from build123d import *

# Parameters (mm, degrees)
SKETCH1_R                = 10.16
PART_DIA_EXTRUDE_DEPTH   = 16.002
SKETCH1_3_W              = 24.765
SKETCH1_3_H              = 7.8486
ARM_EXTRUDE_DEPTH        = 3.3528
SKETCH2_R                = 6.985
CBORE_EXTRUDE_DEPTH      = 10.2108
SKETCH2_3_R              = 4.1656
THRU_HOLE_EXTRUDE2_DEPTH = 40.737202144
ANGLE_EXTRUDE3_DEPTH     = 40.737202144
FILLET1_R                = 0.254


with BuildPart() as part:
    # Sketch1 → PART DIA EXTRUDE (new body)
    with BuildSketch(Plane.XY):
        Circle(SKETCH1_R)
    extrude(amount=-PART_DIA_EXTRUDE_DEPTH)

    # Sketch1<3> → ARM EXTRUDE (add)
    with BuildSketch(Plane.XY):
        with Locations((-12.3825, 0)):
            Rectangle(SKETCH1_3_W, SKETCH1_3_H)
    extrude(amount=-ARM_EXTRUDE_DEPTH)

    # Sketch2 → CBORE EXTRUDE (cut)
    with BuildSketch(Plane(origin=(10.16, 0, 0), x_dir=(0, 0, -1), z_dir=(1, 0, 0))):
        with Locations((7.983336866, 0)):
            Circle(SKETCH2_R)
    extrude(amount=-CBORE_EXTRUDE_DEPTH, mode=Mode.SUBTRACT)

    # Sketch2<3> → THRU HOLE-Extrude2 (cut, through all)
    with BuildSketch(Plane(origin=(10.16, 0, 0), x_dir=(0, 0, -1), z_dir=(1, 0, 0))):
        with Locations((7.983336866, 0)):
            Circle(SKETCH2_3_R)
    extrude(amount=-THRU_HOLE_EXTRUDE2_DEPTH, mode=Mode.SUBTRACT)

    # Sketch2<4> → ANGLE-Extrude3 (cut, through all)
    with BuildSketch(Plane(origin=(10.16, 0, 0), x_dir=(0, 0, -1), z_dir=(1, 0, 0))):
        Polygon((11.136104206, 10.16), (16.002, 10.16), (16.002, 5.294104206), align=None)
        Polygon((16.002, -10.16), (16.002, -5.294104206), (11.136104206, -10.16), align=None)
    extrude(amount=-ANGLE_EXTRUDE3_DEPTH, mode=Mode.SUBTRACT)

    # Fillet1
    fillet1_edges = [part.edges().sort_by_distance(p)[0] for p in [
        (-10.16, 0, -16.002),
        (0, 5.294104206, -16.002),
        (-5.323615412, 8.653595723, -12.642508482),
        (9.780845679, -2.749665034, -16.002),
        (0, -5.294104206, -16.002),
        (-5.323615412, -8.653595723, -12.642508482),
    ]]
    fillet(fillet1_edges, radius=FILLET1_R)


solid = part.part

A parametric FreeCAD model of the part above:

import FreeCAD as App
import Part
import Sketcher
from FreeCAD import Vector
Q = App.Units.Quantity


def edges_at(feature, points):
    """Names of the edges that pass closest to the given points."""
    edges = feature.Shape.Edges
    near = lambda p: min(range(len(edges)), key=lambda i: edges[i].distToShape(Part.Vertex(*p))[0])
    return sorted({f"Edge{near(p) + 1}" for p in points})


def add_polygon(sketch, points):
    """Adds a closed chain of lines whose ends are joined by coincident constraints."""
    first, n = sketch.GeometryCount, len(points)
    for a, b in zip(points, points[1:] + points[:1]):
        sketch.addGeometry(Part.LineSegment(App.Vector(*a, 0), App.Vector(*b, 0)), False)
    for i in range(n):
        sketch.addConstraint(Sketcher.Constraint("Coincident", first + i, 2, first + (i + 1) % n, 1))

doc = App.newDocument("Part")
body = doc.addObject("PartDesign::Body", "Body")

sketch1 = body.newObject("Sketcher::SketchObject", "Sketch")
sketch1.AttachmentSupport = (doc.getObject("XY_Plane"), [""])
sketch1.MapMode = "FlatFace"
sketch1.addGeometry(Part.Circle(Vector(0, 0, 0), Vector(0, 0, 1), 10), False)
sketch1.addConstraint(Sketcher.Constraint("Coincident", 0, 3, -1, 1))
sketch1.addConstraint(Sketcher.Constraint("Diameter", 0, Q("0.8 in")))
pad1 = body.newObject("PartDesign::Pad", "Pad")
pad1.Profile = sketch1
pad1.Length = Q("0.63 in")
pad1.Reversed = True

sketch2 = body.newObject("Sketcher::SketchObject", "Sketch001")
sketch2.AttachmentSupport = (doc.getObject("XY_Plane"), [""])
sketch2.MapMode = "FlatFace"
add_polygon(sketch2, [(-25, 4), (-25, -4), (0, -4), (0, 4)])
sketch2.addConstraint(Sketcher.Constraint("Vertical", 0))
sketch2.addConstraint(Sketcher.Constraint("Horizontal", 1))
sketch2.addConstraint(Sketcher.Constraint("Vertical", 2))
sketch2.addConstraint(Sketcher.Constraint("Horizontal", 3))
sketch2.addConstraint(Sketcher.Constraint("Symmetric", 1, 2, 2, 2, -1, 1))
sketch2.addConstraint(Sketcher.Constraint("DistanceX", 1, 1, 1, 2, Q("0.975 in")))
sketch2.addConstraint(Sketcher.Constraint("DistanceY", 0, 2, 0, 1, Q("0.309 in")))
pad2 = body.newObject("PartDesign::Pad", "Pad001")
pad2.Profile = sketch2
pad2.Length = Q("0.132 in")
pad2.Reversed = True

sketch3 = body.newObject("Sketcher::SketchObject", "Sketch002")
sketch3.AttachmentSupport = (doc.getObject("YZ_Plane"), [""])
sketch3.MapMode = "FlatFace"
sketch3.AttachmentOffset = App.Placement(Vector(0, 0, 0.4 * 25.4), App.Rotation())
sketch3.addGeometry(Part.Circle(Vector(0, -8, 0), Vector(0, 0, 1), 7), False)
sketch3.addConstraint(Sketcher.Constraint("PointOnObject", 0, 3, -2))
sketch3.addConstraint(Sketcher.Constraint("Diameter", 0, Q("0.55 in")))
sketch3.addConstraint(Sketcher.Constraint("DistanceY", 0, 3, -1, 1, 7.983337))
pocket1 = body.newObject("PartDesign::Pocket", "Pocket")
pocket1.Profile = sketch3
pocket1.Length = Q("0.402 in")

sketch4 = body.newObject("Sketcher::SketchObject", "Sketch003")
sketch4.AttachmentSupport = (doc.getObject("YZ_Plane"), [""])
sketch4.MapMode = "FlatFace"
sketch4.AttachmentOffset = App.Placement(Vector(0, 0, 0.4 * 25.4), App.Rotation())
sketch4.addGeometry(Part.Circle(Vector(0, -8, 0), Vector(0, 0, 1), 4.2), False)
sketch4.addConstraint(Sketcher.Constraint("PointOnObject", 0, 3, -2))
sketch4.addConstraint(Sketcher.Constraint("Diameter", 0, Q("0.328 in")))
sketch4.addConstraint(Sketcher.Constraint("DistanceY", 0, 3, -1, 1, 7.983337))
pocket2 = body.newObject("PartDesign::Pocket", "Pocket001")
pocket2.Profile = sketch4
pocket2.Type = "ThroughAll"

sketch5 = body.newObject("Sketcher::SketchObject", "Sketch004")
sketch5.AttachmentSupport = (doc.getObject("YZ_Plane"), [""])
sketch5.MapMode = "FlatFace"
sketch5.AttachmentOffset = App.Placement(Vector(0, 0, 0.4 * 25.4), App.Rotation())
add_polygon(sketch5, [(10.2, -16), (10.2, -11.1), (5.3, -16)])
add_polygon(sketch5, [(-10.2, -16), (-5.3, -16), (-10.2, -11.1)])
sketch5.addConstraint(Sketcher.Constraint("Vertical", 0))
sketch5.addConstraint(Sketcher.Constraint("Horizontal", 2))
sketch5.addConstraint(Sketcher.Constraint("Horizontal", 3))
sketch5.addConstraint(Sketcher.Constraint("Vertical", 5))
sketch5.addConstraint(Sketcher.Constraint("Symmetric", 1, 2, 3, 2, -2))
sketch5.addConstraint(Sketcher.Constraint("Symmetric", 0, 2, 4, 2, -2))
sketch5.addConstraint(Sketcher.Constraint("Perpendicular", 1, 4))
sketch5.addConstraint(Sketcher.Constraint("DistanceX", -1, 1, 0, 2, Q("0.4 in")))
sketch5.addConstraint(Sketcher.Constraint("DistanceY", 1, 2, -1, 1, Q("0.63 in")))
sketch5.addConstraint(Sketcher.Constraint("DistanceX", 2, 1, 2, 2, 4.865896))
pocket3 = body.newObject("PartDesign::Pocket", "Pocket002")
pocket3.Profile = sketch5
pocket3.Type = "ThroughAll"
doc.recompute()

fillet = body.newObject("PartDesign::Fillet", "Fillet")
fillet.Base = (pocket3, edges_at(pocket3, [
    (-10.16, 0, -16.002),
    (0, 5.294, -16.002),
    (-5.324, 8.654, -12.643),
    (9.781, -2.75, -16.002),
    (0, -5.294, -16.002),
    (-5.324, -8.654, -12.643),
]))
fillet.Radius = Q("0.01 in")

doc.recompute()
